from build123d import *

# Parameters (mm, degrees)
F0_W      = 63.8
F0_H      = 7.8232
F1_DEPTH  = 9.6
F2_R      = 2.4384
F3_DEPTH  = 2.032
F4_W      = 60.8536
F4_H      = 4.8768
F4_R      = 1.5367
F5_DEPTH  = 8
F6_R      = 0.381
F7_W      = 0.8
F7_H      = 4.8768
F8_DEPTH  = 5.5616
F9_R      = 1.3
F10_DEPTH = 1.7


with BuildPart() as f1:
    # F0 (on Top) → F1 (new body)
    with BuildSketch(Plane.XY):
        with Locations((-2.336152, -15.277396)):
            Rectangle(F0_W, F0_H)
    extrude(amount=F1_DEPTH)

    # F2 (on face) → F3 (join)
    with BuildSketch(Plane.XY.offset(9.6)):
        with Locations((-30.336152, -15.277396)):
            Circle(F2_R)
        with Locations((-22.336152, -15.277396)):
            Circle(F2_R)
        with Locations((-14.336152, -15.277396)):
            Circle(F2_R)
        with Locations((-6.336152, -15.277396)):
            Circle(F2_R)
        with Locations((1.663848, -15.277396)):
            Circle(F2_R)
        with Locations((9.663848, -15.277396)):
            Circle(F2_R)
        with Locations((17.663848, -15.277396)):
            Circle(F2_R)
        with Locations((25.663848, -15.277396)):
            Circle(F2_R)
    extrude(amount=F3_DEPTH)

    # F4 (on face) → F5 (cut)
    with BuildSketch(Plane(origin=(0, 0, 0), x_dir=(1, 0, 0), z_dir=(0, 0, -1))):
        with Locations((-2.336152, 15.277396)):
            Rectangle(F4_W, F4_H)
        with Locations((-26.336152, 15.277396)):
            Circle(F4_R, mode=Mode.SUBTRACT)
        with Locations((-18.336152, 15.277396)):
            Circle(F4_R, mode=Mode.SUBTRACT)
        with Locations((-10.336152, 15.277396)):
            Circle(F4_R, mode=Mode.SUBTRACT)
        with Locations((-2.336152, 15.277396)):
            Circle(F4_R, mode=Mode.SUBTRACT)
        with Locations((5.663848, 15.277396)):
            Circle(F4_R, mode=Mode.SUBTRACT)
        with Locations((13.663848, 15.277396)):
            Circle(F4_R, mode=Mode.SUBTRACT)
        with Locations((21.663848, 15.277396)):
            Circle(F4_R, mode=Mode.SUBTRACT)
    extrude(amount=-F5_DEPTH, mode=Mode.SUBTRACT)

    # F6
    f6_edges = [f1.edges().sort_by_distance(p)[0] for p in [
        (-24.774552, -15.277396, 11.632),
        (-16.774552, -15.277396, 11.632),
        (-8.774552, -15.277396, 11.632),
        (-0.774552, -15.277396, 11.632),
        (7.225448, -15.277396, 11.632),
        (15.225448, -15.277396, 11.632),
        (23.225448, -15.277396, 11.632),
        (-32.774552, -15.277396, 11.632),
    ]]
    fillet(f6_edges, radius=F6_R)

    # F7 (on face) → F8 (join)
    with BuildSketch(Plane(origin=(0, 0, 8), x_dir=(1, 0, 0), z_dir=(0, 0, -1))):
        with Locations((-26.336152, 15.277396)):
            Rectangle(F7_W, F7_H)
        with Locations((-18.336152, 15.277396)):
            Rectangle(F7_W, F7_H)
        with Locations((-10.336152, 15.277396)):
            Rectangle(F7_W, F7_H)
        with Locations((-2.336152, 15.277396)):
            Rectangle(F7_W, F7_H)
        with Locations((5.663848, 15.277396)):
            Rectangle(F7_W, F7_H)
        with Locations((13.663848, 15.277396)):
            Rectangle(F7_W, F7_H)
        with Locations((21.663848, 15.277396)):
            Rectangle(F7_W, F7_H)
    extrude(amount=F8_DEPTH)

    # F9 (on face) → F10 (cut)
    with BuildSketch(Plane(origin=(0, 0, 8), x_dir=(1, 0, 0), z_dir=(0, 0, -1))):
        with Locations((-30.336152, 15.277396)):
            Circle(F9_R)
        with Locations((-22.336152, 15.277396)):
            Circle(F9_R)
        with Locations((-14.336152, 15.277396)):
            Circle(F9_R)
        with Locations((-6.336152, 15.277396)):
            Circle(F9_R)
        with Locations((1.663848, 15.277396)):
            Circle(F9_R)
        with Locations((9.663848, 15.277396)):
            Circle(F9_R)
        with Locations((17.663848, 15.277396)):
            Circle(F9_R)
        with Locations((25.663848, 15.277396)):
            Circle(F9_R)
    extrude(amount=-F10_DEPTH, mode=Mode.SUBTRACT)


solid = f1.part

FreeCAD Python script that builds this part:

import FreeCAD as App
import Part
import Sketcher

V = App.Vector


def edges_at(feature, points):
    """Names of the edges that pass closest to the given points."""
    edges = feature.Shape.Edges
    near = lambda p: min(range(len(edges)), key=lambda i: edges[i].distToShape(Part.Vertex(*p))[0])
    return sorted({f"Edge{near(p) + 1}" for p in points})


def add_polygon(sketch, points):
    """Adds a closed chain of lines whose ends are joined by coincident constraints."""
    first, n = sketch.GeometryCount, len(points)
    for a, b in zip(points, points[1:] + points[:1]):
        sketch.addGeometry(Part.LineSegment(App.Vector(*a, 0), App.Vector(*b, 0)), False)
    for i in range(n):
        sketch.addConstraint(Sketcher.Constraint("Coincident", first + i, 2, first + (i + 1) % n, 1))

doc = App.newDocument("Part")
body = doc.addObject("PartDesign::Body", "Body")

# Sketch on XY plane
sketch1 = body.newObject("Sketcher::SketchObject", "Sketch")
sketch1.AttachmentSupport = (doc.getObject("XY_Plane"), [""])
sketch1.MapMode = "FlatFace"
add_polygon(sketch1, [(-34, -11), (-34, -19), (30, -19), (30, -11)])  # lines 0-3
sketch1.addConstraint([
    Sketcher.Constraint("Vertical", 0),
    Sketcher.Constraint("Horizontal", 1),
    Sketcher.Constraint("Vertical", 2),
    Sketcher.Constraint("Horizontal", 3),
    Sketcher.Constraint("DistanceX", 1, 1, 1, 2, 63.8),
    Sketcher.Constraint("DistanceY", 0, 2, 0, 1, 7.8232),
    Sketcher.Constraint("DistanceX", 0, 2, -1, 1, 34.236152),
    Sketcher.Constraint("DistanceY", 0, 2, -1, 1, 19.188996),
])
pad1 = body.newObject("PartDesign::Pad", "Pad")
pad1.Profile = sketch1
pad1.Length = 9.6

# Sketch on XY plane
sketch2 = body.newObject("Sketcher::SketchObject", "Sketch001")
sketch2.AttachmentSupport = (doc.getObject("XY_Plane"), [""])
sketch2.MapMode = "FlatFace"
sketch2.AttachmentOffset = App.Placement(V(0, 0, 9.6), App.Rotation())
sketch2.addGeometry([
    Part.Circle(V(-30.3, -15.3, 0), V(0, 0, 1), 2.4),  # 0
    Part.Circle(V(-22.3, -15.3, 0), V(0, 0, 1), 2.4),  # 1
    Part.Circle(V(-14.3, -15.3, 0), V(0, 0, 1), 2.4),  # 2
    Part.Circle(V(-6.3, -15.3, 0), V(0, 0, 1), 2.4),  # 3
    Part.Circle(V(1.7, -15.3, 0), V(0, 0, 1), 2.4),  # 4
    Part.Circle(V(9.7, -15.3, 0), V(0, 0, 1), 2.4),  # 5
    Part.Circle(V(17.7, -15.3, 0), V(0, 0, 1), 2.4),  # 6
    Part.Circle(V(25.7, -15.3, 0), V(0, 0, 1), 2.4),  # 7
], False)
sketch2.addConstraint([
    Sketcher.Constraint("Equal", 0, 1),
    Sketcher.Constraint("Equal", 1, 2),
    Sketcher.Constraint("Equal", 2, 3),
    Sketcher.Constraint("Equal", 3, 4),
    Sketcher.Constraint("Equal", 4, 5),
    Sketcher.Constraint("Equal", 5, 6),
    Sketcher.Constraint("Equal", 6, 7),
    Sketcher.Constraint("Horizontal", 0, 3, 1, 3),
    Sketcher.Constraint("Horizontal", 1, 3, 2, 3),
    Sketcher.Constraint("Horizontal", 2, 3, 3, 3),
    Sketcher.Constraint("Horizontal", 3, 3, 4, 3),
    Sketcher.Constraint("Horizontal", 4, 3, 5, 3),
    Sketcher.Constraint("Horizontal", 5, 3, 6, 3),
    Sketcher.Constraint("Horizontal", 6, 3, 7, 3),
    Sketcher.Constraint("DistanceX", 0, 3, 1, 3, 8.0),
    Sketcher.Constraint("DistanceX", 1, 3, 2, 3, 8.0),
    Sketcher.Constraint("DistanceX", 2, 3, 3, 3, 8.0),
    Sketcher.Constraint("DistanceX", 3, 3, 4, 3, 8.0),
    Sketcher.Constraint("DistanceX", 4, 3, 5, 3, 8.0),
    Sketcher.Constraint("DistanceX", 5, 3, 6, 3, 8.0),
    Sketcher.Constraint("DistanceX", 6, 3, 7, 3, 8.0),
    Sketcher.Constraint("Diameter", 0, 4.8768),
    Sketcher.Constraint("DistanceX", 0, 3, -1, 1, 30.336152),
    Sketcher.Constraint("DistanceY", 0, 3, -1, 1, 15.277396),
])
pad2 = body.newObject("PartDesign::Pad", "Pad001")
pad2.Profile = sketch2
pad2.Length = 2.032

# Sketch on XY plane
sketch3 = body.newObject("Sketcher::SketchObject", "Sketch002")
sketch3.AttachmentSupport = (doc.getObject("XY_Plane"), [""])
sketch3.MapMode = "FlatFace"
add_polygon(sketch3, [(-32.8, -17.7), (-32.8, -12.8), (28.1, -12.8), (28.1, -17.7)])  # lines 0-3
sketch3.addGeometry(Part.Circle(V(-26.3, -15.3, 0), V(0, 0, 1), 1.5), False)  # 4
sketch3.addGeometry(Part.Circle(V(-18.3, -15.3, 0), V(0, 0, 1), 1.5), False)  # 5
sketch3.addGeometry(Part.Circle(V(-10.3, -15.3, 0), V(0, 0, 1), 1.5), False)  # 6
sketch3.addGeometry(Part.Circle(V(-2.3, -15.3, 0), V(0, 0, 1), 1.5), False)  # 7
sketch3.addGeometry(Part.Circle(V(5.7, -15.3, 0), V(0, 0, 1), 1.5), False)  # 8
sketch3.addGeometry(Part.Circle(V(13.7, -15.3, 0), V(0, 0, 1), 1.5), False)  # 9
sketch3.addGeometry(Part.Circle(V(21.7, -15.3, 0), V(0, 0, 1), 1.5), False)  # 10
sketch3.addConstraint([
    Sketcher.Constraint("Vertical", 0),
    Sketcher.Constraint("Horizontal", 1),
    Sketcher.Constraint("Vertical", 2),
    Sketcher.Constraint("Horizontal", 3),
    Sketcher.Constraint("Equal", 4, 5),
    Sketcher.Constraint("Equal", 5, 6),
    Sketcher.Constraint("Equal", 6, 7),
    Sketcher.Constraint("Equal", 7, 8),
    Sketcher.Constraint("Equal", 8, 9),
    Sketcher.Constraint("Equal", 9, 10),
    Sketcher.Constraint("Horizontal", 4, 3, 5, 3),
    Sketcher.Constraint("Horizontal", 5, 3, 6, 3),
    Sketcher.Constraint("Horizontal", 6, 3, 7, 3),
    Sketcher.Constraint("Horizontal", 7, 3, 8, 3),
    Sketcher.Constraint("Horizontal", 8, 3, 9, 3),
    Sketcher.Constraint("Horizontal", 9, 3, 10, 3),
    Sketcher.Constraint("DistanceX", 4, 3, 5, 3, 8.0),
    Sketcher.Constraint("DistanceX", 5, 3, 6, 3, 8.0),
    Sketcher.Constraint("DistanceX", 6, 3, 7, 3, 8.0),
    Sketcher.Constraint("DistanceX", 7, 3, 8, 3, 8.0),
    Sketcher.Constraint("DistanceX", 8, 3, 9, 3, 8.0),
    Sketcher.Constraint("DistanceX", 9, 3, 10, 3, 8.0),
    Sketcher.Constraint("Diameter", 4, 3.0734),
    Sketcher.Constraint("DistanceX", 1, 1, 1, 2, 60.8536),
    Sketcher.Constraint("DistanceY", 0, 1, 0, 2, 4.8768),
    Sketcher.Constraint("DistanceX", 0, 2, 4, 3, 6.4268),
    Sketcher.Constraint("DistanceY", 4, 3, 0, 2, 2.4384),
    Sketcher.Constraint("DistanceX", 4, 3, -1, 1, 26.336152),
    Sketcher.Constraint("DistanceY", 4, 3, -1, 1, 15.277396),
])
pocket1 = body.newObject("PartDesign::Pocket", "Pocket")
pocket1.Profile = sketch3
pocket1.Length = 8
pocket1.Reversed = True
doc.recompute()

fillet = body.newObject("PartDesign::Fillet", "Fillet")
fillet.Base = (pocket1, edges_at(pocket1, [
    (-24.775, -15.277, 11.632),
    (-16.775, -15.277, 11.632),
    (-8.775, -15.277, 11.632),
    (-0.775, -15.277, 11.632),
    (7.225, -15.277, 11.632),
    (15.225, -15.277, 11.632),
    (23.225, -15.277, 11.632),
    (-32.775, -15.277, 11.632),
]))
fillet.Radius = 0.381

# Sketch on XY plane
sketch4 = body.newObject("Sketcher::SketchObject", "Sketch003")
sketch4.AttachmentSupport = (doc.getObject("XY_Plane"), [""])
sketch4.MapMode = "FlatFace"
sketch4.AttachmentOffset = App.Placement(V(0, 0, 8), App.Rotation())
add_polygon(sketch4, [(-26.7, -17.7), (-26.7, -12.8), (-25.9, -12.8), (-25.9, -17.7)])  # lines 0-3
add_polygon(sketch4, [(-18.7, -17.7), (-18.7, -12.8), (-17.9, -12.8), (-17.9, -17.7)])  # lines 4-7
add_polygon(sketch4, [(-10.7, -17.7), (-10.7, -12.8), (-9.9, -12.8), (-9.9, -17.7)])  # lines 8-11
add_polygon(sketch4, [(-2.7, -17.7), (-2.7, -12.8), (-1.9, -12.8), (-1.9, -17.7)])  # lines 12-15
add_polygon(sketch4, [(5.3, -17.7), (5.3, -12.8), (6.1, -12.8), (6.1, -17.7)])  # lines 16-19
add_polygon(sketch4, [(13.3, -17.7), (13.3, -12.8), (14.1, -12.8), (14.1, -17.7)])  # lines 20-23
add_polygon(sketch4, [(21.3, -17.7), (21.3, -12.8), (22.1, -12.8), (22.1, -17.7)])  # lines 24-27
sketch4.addConstraint([
    Sketcher.Constraint("Vertical", 0),
    Sketcher.Constraint("Horizontal", 1),
    Sketcher.Constraint("Vertical", 2),
    Sketcher.Constraint("Horizontal", 3),
    Sketcher.Constraint("Vertical", 4),
    Sketcher.Constraint("Horizontal", 5),
    Sketcher.Constraint("Vertical", 6),
    Sketcher.Constraint("Horizontal", 7),
    Sketcher.Constraint("Vertical", 8),
    Sketcher.Constraint("Horizontal", 9),
    Sketcher.Constraint("Vertical", 10),
    Sketcher.Constraint("Horizontal", 11),
    Sketcher.Constraint("Vertical", 12),
    Sketcher.Constraint("Horizontal", 13),
    Sketcher.Constraint("Vertical", 14),
    Sketcher.Constraint("Horizontal", 15),
    Sketcher.Constraint("Vertical", 16),
    Sketcher.Constraint("Horizontal", 17),
    Sketcher.Constraint("Vertical", 18),
    Sketcher.Constraint("Horizontal", 19),
    Sketcher.Constraint("Vertical", 20),
    Sketcher.Constraint("Horizontal", 21),
    Sketcher.Constraint("Vertical", 22),
    Sketcher.Constraint("Horizontal", 23),
    Sketcher.Constraint("Vertical", 24),
    Sketcher.Constraint("Horizontal", 25),
    Sketcher.Constraint("Vertical", 26),
    Sketcher.Constraint("Horizontal", 27),
    Sketcher.Constraint("Horizontal", 1, 2, 4, 2),
    Sketcher.Constraint("Horizontal", 3, 2, 6, 2),
    Sketcher.Constraint("Horizontal", 5, 2, 8, 2),
    Sketcher.Constraint("Horizontal", 7, 2, 10, 2),
    Sketcher.Constraint("Horizontal", 9, 2, 12, 2),
    Sketcher.Constraint("Horizontal", 11, 2, 14, 2),
    Sketcher.Constraint("Horizontal", 13, 2, 16, 2),
    Sketcher.Constraint("Horizontal", 15, 2, 18, 2),
    Sketcher.Constraint("Horizontal", 17, 2, 20, 2),
    Sketcher.Constraint("Horizontal", 19, 2, 22, 2),
    Sketcher.Constraint("Horizontal", 21, 2, 24, 2),
    Sketcher.Constraint("Horizontal", 23, 2, 26, 2),
    Sketcher.Constraint("Equal", 3, 5),
    Sketcher.Constraint("Equal", 7, 9),
    Sketcher.Constraint("Equal", 11, 13),
    Sketcher.Constraint("Equal", 15, 17),
    Sketcher.Constraint("Equal", 19, 21),
    Sketcher.Constraint("Equal", 23, 25),
    Sketcher.Constraint("DistanceX", 1, 1, 1, 2, 0.8),
    Sketcher.Constraint("DistanceX", 0, 2, 4, 2, 8.0),
    Sketcher.Constraint("DistanceX", 4, 2, 8, 2, 8.0),
    Sketcher.Constraint("DistanceX", 8, 2, 12, 2, 8.0),
    Sketcher.Constraint("DistanceX", 12, 2, 16, 2, 8.0),
    Sketcher.Constraint("DistanceX", 16, 2, 20, 2, 8.0),
    Sketcher.Constraint("DistanceX", 20, 2, 24, 2, 8.0),
    Sketcher.Constraint("DistanceY", 0, 1, 0, 2, 4.8768),
    Sketcher.Constraint("DistanceX", 1, 2, -1, 1, 25.936152),
    Sketcher.Constraint("DistanceY", 0, 2, -1, 1, 12.838996),
])
pad3 = body.newObject("PartDesign::Pad", "Pad002")
pad3.Profile = sketch4
pad3.Length = 5.5616
pad3.Reversed = True

# Sketch on XY plane
sketch5 = body.newObject("Sketcher::SketchObject", "Sketch004")
sketch5.AttachmentSupport = (doc.getObject("XY_Plane"), [""])
sketch5.MapMode = "FlatFace"
sketch5.AttachmentOffset = App.Placement(V(0, 0, 8), App.Rotation())
sketch5.addGeometry([
    Part.Circle(V(-30.3, -15.3, 0), V(0, 0, 1), 1.3),  # 0
    Part.Circle(V(-22.3, -15.3, 0), V(0, 0, 1), 1.3),  # 1
    Part.Circle(V(-14.3, -15.3, 0), V(0, 0, 1), 1.3),  # 2
    Part.Circle(V(-6.3, -15.3, 0), V(0, 0, 1), 1.3),  # 3
    Part.Circle(V(1.7, -15.3, 0), V(0, 0, 1), 1.3),  # 4
    Part.Circle(V(9.7, -15.3, 0), V(0, 0, 1), 1.3),  # 5
    Part.Circle(V(17.7, -15.3, 0), V(0, 0, 1), 1.3),  # 6
    Part.Circle(V(25.7, -15.3, 0), V(0, 0, 1), 1.3),  # 7
], False)
sketch5.addConstraint([
    Sketcher.Constraint("Equal", 0, 1),
    Sketcher.Constraint("Equal", 1, 2),
    Sketcher.Constraint("Equal", 2, 3),
    Sketcher.Constraint("Equal", 3, 4),
    Sketcher.Constraint("Equal", 4, 5),
    Sketcher.Constraint("Equal", 5, 6),
    Sketcher.Constraint("Equal", 6, 7),
    Sketcher.Constraint("Horizontal", 0, 3, 1, 3),
    Sketcher.Constraint("Horizontal", 1, 3, 2, 3),
    Sketcher.Constraint("Horizontal", 2, 3, 3, 3),
    Sketcher.Constraint("Horizontal", 3, 3, 4, 3),
    Sketcher.Constraint("Horizontal", 4, 3, 5, 3),
    Sketcher.Constraint("Horizontal", 5, 3, 6, 3),
    Sketcher.Constraint("Horizontal", 6, 3, 7, 3),
    Sketcher.Constraint("Diameter", 0, 2.6),
    Sketcher.Constraint("DistanceX", 0, 3, 1, 3, 8.0),
    Sketcher.Constraint("DistanceX", 1, 3, 2, 3, 8.0),
    Sketcher.Constraint("DistanceX", 2, 3, 3, 3, 8.0),
    Sketcher.Constraint("DistanceX", 3, 3, 4, 3, 8.0),
    Sketcher.Constraint("DistanceX", 4, 3, 5, 3, 8.0),
    Sketcher.Constraint("DistanceX", 5, 3, 6, 3, 8.0),
    Sketcher.Constraint("DistanceX", 6, 3, 7, 3, 8.0),
    Sketcher.Constraint("DistanceX", 0, 3, -1, 1, 30.336152),
    Sketcher.Constraint("DistanceY", 0, 3, -1, 1, 15.277396),
])
pocket2 = body.newObject("PartDesign::Pocket", "Pocket001")
pocket2.Profile = sketch5
pocket2.Length = 1.7
pocket2.Reversed = True

doc.recompute()
